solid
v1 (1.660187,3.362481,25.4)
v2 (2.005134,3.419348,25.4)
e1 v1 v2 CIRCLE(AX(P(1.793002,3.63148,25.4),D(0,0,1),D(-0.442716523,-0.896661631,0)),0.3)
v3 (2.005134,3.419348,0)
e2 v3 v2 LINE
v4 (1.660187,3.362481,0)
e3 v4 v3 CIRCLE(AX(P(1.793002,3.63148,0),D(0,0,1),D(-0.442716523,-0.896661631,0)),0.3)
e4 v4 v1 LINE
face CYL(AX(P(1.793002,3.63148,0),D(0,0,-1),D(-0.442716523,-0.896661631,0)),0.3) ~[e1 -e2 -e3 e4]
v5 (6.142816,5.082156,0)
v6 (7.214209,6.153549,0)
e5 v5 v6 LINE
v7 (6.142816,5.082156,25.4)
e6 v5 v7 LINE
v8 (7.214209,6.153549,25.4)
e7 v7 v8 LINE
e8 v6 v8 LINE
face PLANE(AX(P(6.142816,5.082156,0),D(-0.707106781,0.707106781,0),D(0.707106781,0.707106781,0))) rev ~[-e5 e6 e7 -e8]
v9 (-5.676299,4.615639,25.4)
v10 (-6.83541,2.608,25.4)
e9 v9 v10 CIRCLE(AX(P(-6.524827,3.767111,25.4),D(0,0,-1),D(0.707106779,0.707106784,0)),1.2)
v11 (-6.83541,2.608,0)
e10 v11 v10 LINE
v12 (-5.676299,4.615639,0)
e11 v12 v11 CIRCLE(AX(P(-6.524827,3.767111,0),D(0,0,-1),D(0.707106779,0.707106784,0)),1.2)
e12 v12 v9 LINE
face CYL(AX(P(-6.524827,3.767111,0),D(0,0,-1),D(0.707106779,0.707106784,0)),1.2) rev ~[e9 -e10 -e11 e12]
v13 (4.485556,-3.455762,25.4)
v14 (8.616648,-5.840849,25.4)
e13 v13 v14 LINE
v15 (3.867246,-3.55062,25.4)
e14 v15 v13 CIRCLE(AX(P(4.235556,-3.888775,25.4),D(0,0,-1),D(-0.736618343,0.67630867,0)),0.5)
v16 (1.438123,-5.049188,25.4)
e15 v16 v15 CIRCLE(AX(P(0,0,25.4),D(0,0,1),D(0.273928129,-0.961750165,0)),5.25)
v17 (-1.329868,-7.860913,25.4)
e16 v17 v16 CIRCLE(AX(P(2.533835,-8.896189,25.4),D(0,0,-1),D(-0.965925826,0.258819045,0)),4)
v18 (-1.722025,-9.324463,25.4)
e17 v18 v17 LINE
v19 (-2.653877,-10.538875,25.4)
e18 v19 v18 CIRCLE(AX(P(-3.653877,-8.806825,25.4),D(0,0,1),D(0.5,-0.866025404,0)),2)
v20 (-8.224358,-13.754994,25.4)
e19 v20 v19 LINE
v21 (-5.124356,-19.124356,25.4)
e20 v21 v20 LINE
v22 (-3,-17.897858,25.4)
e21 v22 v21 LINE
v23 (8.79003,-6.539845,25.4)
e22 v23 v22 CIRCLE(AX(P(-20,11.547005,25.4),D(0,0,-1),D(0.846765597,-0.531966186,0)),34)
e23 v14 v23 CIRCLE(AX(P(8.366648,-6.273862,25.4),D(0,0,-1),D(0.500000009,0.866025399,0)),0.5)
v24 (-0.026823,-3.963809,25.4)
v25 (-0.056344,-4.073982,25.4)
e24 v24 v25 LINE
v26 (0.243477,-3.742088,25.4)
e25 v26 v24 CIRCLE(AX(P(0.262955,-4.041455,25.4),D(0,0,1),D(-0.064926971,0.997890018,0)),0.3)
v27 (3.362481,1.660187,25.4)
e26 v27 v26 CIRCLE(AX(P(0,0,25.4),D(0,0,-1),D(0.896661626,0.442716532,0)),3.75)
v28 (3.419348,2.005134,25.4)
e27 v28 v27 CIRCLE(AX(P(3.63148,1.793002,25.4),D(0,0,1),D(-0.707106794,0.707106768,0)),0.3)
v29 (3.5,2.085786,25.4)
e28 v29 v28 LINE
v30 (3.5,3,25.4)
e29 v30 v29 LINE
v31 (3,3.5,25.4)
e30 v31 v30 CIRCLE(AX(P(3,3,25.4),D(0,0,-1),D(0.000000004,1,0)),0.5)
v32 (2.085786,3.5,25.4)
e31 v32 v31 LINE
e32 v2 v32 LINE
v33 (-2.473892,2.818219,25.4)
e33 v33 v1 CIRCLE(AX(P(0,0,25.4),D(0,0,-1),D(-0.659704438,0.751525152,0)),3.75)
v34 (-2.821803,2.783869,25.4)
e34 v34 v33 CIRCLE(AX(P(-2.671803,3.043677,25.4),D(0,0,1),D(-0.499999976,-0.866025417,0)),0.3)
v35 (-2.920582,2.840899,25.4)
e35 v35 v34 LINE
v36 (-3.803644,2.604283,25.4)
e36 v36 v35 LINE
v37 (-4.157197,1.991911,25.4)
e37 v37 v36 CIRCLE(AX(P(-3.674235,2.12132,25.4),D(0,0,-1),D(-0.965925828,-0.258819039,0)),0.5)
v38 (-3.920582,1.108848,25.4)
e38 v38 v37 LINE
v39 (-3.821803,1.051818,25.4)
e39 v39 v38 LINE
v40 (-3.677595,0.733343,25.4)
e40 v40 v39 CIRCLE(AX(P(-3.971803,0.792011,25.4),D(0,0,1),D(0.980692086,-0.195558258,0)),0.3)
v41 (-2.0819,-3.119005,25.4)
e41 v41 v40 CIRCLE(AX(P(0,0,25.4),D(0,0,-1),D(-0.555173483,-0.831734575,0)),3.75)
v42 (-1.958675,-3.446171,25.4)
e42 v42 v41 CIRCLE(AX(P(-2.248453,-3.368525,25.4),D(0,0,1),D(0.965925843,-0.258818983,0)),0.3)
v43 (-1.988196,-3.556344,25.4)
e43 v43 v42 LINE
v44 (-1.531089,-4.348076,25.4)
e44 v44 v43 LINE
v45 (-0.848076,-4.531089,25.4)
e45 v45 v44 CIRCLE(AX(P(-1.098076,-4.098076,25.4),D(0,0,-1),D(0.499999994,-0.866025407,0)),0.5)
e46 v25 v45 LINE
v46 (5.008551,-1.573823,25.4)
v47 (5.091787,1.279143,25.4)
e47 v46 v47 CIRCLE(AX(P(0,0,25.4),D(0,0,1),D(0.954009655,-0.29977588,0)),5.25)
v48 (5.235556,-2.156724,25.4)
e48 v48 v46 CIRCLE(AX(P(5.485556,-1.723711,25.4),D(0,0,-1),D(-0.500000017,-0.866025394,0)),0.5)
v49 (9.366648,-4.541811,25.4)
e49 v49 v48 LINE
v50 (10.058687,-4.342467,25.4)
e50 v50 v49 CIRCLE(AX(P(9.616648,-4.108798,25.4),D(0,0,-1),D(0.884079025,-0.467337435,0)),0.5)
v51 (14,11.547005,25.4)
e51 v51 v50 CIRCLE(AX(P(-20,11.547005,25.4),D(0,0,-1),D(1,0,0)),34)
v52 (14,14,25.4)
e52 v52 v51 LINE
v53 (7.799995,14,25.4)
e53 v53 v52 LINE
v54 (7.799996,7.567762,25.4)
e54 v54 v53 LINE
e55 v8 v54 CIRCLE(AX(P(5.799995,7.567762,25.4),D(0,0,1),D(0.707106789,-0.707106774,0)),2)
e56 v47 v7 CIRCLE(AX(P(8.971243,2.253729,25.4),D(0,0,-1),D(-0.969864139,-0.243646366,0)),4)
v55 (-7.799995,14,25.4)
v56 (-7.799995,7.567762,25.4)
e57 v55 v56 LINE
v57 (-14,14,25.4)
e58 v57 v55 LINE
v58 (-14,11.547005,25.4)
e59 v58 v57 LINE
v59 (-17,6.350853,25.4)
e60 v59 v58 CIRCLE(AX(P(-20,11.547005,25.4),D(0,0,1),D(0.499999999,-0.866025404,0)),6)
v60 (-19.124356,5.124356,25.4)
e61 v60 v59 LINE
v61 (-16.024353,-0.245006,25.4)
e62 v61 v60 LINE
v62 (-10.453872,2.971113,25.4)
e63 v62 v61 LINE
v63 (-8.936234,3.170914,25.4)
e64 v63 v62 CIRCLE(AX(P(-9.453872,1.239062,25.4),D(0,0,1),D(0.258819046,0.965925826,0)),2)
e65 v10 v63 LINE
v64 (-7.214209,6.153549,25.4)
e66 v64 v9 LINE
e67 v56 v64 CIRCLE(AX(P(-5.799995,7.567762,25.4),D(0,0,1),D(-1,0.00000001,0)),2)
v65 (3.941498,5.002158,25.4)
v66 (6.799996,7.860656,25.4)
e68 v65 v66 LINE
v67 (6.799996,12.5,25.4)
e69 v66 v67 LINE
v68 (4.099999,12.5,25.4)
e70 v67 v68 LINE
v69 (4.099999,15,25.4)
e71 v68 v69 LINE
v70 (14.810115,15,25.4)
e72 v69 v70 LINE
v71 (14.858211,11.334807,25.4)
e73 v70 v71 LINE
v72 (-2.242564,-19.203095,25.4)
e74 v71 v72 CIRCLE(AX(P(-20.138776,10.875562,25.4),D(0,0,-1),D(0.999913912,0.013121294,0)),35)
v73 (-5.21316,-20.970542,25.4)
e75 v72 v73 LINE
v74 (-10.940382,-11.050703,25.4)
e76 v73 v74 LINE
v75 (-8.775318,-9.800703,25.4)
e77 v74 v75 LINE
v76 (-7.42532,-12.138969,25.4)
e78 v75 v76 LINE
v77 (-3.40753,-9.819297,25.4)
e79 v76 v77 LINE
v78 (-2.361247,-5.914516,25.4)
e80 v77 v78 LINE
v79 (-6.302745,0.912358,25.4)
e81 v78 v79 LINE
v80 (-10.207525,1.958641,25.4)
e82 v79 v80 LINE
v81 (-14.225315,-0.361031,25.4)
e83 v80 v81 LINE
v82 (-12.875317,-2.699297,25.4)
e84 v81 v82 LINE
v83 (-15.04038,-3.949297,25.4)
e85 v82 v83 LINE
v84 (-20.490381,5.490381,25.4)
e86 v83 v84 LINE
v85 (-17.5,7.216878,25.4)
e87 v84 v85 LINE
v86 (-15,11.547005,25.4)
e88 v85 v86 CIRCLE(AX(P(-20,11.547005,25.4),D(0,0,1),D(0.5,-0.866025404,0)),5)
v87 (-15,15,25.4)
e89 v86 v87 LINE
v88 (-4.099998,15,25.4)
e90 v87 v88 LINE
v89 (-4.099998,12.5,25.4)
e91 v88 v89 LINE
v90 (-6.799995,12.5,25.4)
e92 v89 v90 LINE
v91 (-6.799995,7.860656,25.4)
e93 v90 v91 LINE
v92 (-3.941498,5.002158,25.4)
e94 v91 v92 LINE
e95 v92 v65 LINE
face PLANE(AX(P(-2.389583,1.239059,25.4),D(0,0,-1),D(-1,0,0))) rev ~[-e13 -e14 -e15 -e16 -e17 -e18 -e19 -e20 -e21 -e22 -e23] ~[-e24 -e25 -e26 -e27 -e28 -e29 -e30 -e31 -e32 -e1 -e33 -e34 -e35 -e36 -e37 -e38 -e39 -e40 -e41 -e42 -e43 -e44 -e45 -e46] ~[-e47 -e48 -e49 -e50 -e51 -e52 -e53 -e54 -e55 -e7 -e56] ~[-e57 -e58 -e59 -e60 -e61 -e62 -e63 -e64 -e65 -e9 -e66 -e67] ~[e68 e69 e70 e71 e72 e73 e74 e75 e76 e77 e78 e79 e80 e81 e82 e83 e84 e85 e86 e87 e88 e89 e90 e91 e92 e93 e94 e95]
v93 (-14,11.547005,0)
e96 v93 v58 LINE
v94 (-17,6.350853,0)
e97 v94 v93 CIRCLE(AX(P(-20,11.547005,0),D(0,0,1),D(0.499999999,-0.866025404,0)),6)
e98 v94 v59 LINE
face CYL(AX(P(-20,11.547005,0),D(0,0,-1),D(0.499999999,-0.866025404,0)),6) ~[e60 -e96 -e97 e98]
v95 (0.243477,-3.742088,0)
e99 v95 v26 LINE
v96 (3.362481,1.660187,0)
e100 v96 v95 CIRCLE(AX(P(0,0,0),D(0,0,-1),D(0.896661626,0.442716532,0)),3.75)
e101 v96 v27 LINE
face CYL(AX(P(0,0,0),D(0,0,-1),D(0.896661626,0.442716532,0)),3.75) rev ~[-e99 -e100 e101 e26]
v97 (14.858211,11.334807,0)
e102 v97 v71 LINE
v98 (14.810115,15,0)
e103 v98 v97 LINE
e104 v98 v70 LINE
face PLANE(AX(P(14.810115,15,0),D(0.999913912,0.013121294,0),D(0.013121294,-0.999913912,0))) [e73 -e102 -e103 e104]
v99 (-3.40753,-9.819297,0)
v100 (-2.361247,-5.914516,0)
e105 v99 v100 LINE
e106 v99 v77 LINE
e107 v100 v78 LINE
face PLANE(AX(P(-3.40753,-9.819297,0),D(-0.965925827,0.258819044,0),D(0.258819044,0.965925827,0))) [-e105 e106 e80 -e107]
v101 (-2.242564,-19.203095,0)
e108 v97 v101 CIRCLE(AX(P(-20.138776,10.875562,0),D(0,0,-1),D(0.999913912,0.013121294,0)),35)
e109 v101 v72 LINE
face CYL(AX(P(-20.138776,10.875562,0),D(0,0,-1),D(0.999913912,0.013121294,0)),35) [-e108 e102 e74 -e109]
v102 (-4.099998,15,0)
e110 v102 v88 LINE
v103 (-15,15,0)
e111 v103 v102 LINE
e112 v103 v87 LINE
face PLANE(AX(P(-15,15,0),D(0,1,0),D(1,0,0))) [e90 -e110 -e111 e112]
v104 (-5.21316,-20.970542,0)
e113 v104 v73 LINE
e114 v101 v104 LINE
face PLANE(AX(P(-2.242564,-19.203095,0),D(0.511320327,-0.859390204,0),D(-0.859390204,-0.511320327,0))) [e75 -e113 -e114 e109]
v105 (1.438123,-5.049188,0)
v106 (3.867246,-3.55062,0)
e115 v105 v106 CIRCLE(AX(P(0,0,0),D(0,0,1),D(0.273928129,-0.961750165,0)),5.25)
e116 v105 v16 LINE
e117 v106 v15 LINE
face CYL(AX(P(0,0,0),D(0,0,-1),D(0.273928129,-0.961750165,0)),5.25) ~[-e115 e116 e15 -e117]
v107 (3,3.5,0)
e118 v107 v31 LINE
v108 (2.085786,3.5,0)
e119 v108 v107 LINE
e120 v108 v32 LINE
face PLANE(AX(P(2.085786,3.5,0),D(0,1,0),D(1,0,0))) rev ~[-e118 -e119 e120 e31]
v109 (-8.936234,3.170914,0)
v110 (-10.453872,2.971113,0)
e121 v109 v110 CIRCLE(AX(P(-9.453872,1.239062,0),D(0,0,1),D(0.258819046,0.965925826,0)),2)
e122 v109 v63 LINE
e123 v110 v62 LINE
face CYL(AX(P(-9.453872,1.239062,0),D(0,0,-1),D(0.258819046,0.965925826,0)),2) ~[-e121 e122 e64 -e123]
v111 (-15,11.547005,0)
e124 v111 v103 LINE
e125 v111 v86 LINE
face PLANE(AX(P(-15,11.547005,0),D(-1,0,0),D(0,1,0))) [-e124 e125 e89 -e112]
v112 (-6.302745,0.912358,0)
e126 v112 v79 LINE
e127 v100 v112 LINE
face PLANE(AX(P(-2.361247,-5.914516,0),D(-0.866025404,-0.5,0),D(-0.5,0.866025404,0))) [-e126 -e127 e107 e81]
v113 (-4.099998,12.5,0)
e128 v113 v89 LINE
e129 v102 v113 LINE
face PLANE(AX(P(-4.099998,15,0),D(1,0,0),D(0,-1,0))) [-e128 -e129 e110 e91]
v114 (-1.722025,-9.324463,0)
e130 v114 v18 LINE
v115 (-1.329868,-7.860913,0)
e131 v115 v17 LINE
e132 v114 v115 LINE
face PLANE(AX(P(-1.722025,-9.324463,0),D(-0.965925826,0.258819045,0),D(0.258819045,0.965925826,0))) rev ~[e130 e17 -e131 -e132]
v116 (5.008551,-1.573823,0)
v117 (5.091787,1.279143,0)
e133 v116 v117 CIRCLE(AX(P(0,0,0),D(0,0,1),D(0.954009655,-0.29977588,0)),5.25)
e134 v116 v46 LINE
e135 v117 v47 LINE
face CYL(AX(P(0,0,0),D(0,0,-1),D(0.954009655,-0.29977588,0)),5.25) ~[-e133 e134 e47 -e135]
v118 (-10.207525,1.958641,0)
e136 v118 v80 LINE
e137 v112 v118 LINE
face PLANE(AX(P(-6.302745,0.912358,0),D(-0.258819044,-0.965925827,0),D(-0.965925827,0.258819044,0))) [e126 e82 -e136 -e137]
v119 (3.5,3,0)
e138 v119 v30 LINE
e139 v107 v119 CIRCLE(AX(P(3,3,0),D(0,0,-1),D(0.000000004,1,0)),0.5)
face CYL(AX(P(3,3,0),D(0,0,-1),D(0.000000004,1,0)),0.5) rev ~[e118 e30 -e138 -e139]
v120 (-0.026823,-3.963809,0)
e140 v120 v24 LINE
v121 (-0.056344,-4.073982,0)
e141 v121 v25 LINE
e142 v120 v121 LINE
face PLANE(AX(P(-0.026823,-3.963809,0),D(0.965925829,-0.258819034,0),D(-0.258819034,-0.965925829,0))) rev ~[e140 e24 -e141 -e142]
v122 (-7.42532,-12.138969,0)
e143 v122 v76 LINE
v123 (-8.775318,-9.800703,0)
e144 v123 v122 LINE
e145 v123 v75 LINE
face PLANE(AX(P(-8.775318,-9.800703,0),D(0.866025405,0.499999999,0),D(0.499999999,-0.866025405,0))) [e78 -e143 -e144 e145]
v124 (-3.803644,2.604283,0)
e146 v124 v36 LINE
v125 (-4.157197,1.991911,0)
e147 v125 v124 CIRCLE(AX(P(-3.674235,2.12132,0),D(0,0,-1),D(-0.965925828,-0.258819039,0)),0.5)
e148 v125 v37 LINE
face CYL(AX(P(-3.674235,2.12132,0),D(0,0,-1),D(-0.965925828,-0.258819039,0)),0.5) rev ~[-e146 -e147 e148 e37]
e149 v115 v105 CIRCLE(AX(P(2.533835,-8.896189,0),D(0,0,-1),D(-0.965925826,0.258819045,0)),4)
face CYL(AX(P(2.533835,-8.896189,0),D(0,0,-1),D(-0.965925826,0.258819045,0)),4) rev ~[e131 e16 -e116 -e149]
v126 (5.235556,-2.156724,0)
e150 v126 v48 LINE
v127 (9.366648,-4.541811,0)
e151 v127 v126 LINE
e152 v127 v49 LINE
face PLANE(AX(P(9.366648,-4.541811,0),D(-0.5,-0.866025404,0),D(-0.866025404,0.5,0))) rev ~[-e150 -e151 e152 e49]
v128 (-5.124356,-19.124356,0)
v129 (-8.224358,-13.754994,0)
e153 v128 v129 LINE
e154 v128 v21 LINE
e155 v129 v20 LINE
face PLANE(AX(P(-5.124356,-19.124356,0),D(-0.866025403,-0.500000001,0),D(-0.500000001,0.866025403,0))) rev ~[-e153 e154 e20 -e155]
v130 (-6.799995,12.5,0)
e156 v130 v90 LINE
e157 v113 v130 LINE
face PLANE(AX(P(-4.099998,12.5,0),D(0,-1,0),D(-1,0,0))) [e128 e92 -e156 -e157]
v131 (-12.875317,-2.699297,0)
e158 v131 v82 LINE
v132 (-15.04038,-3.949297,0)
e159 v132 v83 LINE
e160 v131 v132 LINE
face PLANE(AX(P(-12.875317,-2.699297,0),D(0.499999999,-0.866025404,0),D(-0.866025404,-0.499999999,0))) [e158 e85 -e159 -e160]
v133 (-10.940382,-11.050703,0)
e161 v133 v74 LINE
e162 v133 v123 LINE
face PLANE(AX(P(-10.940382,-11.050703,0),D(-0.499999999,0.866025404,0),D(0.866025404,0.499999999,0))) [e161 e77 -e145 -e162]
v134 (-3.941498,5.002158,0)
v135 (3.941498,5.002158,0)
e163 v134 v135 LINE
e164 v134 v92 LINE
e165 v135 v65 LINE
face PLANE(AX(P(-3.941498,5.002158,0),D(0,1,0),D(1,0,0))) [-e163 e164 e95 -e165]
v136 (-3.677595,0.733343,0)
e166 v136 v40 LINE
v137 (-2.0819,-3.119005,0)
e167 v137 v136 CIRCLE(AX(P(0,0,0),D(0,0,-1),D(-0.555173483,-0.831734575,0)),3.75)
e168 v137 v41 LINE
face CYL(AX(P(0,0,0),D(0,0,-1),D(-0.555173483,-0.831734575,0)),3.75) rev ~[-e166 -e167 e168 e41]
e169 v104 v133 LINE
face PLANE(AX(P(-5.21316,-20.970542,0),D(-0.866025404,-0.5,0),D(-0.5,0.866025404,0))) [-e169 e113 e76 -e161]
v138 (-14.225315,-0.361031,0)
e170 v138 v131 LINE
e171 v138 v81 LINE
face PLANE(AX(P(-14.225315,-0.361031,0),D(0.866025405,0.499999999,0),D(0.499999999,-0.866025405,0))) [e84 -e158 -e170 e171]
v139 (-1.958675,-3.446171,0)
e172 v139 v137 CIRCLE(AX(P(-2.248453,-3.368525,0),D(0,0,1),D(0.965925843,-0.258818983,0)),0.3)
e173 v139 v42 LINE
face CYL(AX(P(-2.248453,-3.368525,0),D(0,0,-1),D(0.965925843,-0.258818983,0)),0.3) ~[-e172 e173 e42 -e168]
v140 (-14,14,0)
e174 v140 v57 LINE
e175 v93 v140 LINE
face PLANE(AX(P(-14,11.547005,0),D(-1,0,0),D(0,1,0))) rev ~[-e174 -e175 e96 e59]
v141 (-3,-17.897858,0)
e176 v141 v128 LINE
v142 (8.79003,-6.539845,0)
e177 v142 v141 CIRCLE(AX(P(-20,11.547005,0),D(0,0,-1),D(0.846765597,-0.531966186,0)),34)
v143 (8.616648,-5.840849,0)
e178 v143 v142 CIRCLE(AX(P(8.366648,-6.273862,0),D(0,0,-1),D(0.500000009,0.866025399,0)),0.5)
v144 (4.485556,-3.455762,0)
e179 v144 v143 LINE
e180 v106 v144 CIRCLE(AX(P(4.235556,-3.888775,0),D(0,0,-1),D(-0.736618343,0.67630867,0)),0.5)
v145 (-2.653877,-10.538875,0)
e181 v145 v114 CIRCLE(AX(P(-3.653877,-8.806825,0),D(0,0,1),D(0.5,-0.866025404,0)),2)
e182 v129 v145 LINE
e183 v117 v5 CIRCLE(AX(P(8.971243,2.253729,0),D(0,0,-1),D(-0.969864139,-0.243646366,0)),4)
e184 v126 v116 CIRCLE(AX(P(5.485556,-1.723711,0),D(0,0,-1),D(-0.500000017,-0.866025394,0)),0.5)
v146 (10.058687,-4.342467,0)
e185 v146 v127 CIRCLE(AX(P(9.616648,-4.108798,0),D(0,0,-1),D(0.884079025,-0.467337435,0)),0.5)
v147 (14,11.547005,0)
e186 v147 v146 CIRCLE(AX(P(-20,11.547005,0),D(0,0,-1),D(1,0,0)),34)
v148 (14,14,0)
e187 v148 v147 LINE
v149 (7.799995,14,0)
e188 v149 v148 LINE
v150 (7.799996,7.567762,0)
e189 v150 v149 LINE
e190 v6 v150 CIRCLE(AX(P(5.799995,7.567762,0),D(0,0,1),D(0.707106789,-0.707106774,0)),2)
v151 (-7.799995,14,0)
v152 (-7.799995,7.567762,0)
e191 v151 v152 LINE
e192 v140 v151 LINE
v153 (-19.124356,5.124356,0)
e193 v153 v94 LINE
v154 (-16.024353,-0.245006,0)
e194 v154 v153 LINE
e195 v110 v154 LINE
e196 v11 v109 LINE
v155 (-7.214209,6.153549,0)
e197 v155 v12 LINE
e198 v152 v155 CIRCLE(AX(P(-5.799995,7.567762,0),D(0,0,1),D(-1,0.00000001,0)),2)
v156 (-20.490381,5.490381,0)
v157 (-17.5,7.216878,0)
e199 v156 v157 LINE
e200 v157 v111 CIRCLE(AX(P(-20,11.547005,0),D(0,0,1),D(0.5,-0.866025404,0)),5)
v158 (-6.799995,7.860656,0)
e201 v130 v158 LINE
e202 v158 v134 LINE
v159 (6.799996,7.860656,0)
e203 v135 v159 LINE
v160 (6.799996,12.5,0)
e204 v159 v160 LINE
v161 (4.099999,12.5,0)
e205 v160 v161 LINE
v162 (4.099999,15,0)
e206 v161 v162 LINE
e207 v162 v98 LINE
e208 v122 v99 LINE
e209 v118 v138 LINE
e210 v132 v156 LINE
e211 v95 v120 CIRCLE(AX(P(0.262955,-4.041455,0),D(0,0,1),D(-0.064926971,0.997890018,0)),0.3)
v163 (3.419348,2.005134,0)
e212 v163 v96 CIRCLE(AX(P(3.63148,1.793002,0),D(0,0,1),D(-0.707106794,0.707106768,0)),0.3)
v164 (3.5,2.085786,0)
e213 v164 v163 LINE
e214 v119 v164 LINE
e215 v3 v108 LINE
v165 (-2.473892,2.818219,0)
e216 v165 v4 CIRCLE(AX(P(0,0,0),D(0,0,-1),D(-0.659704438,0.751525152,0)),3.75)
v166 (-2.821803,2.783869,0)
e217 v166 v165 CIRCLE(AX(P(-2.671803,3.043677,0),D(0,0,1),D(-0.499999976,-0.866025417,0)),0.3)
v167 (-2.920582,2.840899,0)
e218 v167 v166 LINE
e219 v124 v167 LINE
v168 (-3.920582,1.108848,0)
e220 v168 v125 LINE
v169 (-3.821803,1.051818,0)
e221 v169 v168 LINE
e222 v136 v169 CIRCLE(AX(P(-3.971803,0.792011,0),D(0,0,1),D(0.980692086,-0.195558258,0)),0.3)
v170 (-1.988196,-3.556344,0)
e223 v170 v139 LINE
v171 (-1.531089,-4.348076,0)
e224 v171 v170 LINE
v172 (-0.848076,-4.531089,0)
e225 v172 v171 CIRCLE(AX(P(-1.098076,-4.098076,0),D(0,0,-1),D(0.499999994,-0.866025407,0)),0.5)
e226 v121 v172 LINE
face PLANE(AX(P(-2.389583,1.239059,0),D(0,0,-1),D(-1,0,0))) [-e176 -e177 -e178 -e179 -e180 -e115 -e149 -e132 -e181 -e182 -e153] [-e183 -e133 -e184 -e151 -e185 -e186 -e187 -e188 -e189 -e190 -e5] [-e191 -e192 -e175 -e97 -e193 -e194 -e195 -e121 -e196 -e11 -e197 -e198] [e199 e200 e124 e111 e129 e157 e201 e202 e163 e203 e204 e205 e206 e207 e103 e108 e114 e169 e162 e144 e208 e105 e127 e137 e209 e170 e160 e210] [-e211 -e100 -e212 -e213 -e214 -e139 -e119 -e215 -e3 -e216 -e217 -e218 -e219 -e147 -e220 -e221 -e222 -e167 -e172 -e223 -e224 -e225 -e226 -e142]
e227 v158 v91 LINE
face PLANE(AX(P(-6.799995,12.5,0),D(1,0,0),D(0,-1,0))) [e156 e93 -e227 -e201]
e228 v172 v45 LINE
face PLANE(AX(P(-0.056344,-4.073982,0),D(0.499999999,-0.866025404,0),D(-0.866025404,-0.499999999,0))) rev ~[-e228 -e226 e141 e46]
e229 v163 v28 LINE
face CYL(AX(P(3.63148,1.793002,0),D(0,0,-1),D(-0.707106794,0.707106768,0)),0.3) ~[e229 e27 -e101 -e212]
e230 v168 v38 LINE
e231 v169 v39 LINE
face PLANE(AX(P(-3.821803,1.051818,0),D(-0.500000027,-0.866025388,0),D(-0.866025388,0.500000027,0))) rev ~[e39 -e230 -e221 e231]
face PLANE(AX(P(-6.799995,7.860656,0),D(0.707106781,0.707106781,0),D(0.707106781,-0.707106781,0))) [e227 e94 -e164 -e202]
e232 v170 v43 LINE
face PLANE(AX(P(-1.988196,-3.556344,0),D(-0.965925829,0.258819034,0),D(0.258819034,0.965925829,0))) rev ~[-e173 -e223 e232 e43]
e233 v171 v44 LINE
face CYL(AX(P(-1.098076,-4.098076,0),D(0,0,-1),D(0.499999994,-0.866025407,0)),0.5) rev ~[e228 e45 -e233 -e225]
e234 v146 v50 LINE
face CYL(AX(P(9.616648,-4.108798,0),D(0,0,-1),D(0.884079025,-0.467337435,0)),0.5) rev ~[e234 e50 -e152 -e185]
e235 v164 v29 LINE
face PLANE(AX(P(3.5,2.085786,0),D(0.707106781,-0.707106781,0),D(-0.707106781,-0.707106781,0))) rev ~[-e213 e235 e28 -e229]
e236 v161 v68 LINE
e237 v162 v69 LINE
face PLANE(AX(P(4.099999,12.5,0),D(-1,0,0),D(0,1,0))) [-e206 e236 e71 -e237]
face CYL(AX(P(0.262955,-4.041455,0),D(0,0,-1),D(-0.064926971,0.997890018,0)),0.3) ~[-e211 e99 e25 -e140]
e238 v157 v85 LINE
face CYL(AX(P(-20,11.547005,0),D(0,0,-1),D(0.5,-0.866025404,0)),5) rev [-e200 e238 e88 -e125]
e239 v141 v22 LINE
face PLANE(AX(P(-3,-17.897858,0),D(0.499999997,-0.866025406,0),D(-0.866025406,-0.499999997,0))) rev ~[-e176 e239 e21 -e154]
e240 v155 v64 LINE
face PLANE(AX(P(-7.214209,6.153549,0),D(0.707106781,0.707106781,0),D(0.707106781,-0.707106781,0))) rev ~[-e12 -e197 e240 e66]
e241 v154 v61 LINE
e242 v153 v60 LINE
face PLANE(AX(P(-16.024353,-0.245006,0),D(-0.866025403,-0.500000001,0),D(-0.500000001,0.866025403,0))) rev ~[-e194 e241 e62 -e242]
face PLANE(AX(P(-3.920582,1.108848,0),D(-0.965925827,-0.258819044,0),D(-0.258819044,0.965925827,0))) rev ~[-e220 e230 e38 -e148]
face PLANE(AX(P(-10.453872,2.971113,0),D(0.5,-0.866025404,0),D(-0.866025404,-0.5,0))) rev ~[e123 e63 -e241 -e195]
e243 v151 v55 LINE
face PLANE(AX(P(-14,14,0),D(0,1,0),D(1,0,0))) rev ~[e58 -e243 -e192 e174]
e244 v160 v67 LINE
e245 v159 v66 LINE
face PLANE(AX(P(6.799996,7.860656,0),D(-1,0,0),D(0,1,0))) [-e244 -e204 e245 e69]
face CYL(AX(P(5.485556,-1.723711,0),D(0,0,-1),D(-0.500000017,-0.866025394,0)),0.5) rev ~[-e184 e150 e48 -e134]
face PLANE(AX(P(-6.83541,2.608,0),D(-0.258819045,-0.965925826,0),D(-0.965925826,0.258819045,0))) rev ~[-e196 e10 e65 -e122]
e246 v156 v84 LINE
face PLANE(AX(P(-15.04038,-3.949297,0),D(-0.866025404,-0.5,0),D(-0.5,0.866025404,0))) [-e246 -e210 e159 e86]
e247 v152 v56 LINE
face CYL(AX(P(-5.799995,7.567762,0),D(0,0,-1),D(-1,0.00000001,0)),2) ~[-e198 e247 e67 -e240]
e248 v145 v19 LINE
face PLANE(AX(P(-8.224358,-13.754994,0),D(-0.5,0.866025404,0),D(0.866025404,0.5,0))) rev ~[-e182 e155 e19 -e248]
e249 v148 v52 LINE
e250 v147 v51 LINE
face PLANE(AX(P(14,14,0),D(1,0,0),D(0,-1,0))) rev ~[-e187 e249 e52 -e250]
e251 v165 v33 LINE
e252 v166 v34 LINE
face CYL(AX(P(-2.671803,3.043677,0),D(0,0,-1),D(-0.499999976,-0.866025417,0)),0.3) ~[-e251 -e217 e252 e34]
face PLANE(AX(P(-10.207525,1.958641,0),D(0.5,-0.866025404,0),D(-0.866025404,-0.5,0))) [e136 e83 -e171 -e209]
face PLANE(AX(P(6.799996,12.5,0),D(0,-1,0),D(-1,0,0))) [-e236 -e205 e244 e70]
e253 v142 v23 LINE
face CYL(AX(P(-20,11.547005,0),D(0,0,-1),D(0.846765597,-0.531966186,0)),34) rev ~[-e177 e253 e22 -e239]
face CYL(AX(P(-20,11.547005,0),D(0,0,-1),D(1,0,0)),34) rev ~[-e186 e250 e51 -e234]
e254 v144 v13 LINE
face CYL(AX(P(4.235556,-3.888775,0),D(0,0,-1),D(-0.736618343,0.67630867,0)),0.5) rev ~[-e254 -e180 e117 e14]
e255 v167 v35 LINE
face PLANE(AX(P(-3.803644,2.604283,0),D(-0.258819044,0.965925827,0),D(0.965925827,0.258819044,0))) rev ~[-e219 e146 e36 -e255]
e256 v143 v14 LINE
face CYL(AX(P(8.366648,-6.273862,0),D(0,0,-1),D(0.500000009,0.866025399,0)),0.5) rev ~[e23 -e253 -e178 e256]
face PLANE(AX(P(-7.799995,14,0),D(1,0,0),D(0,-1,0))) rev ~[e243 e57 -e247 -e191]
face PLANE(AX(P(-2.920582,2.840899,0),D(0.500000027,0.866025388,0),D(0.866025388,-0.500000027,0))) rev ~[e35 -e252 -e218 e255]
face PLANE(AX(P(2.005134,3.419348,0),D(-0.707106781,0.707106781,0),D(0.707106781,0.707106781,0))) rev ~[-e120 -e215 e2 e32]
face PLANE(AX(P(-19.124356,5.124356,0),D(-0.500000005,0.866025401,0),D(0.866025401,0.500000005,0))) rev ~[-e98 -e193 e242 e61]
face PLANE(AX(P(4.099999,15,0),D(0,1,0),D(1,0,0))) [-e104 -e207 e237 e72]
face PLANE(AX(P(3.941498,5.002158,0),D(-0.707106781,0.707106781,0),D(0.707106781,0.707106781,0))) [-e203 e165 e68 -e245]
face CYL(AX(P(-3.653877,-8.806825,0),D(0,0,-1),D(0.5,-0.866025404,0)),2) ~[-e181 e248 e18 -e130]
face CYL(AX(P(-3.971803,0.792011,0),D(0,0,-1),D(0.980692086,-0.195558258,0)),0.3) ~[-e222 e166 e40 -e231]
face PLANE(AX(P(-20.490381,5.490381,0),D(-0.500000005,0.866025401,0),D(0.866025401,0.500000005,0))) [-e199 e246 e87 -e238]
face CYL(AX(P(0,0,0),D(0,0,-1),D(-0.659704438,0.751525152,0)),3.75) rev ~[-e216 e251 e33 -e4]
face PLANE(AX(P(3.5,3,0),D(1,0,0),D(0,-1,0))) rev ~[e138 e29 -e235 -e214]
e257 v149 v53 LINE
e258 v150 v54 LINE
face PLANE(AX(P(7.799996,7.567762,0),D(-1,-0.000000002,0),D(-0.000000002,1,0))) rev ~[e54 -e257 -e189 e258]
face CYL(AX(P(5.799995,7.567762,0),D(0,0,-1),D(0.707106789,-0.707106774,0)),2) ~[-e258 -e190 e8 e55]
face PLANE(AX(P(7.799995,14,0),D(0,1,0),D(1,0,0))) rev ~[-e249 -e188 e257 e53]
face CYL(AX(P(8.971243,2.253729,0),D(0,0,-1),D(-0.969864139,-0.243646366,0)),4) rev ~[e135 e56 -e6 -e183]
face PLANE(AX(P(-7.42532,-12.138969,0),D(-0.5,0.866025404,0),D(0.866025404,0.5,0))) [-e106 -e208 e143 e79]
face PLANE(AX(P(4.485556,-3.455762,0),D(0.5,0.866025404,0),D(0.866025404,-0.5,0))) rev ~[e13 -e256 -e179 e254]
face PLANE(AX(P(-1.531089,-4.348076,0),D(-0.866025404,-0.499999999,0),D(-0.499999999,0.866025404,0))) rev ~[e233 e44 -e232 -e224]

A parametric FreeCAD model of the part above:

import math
import FreeCAD as App
import Part
import Sketcher
from FreeCAD import Vector
Q = App.Units.Quantity

doc = App.newDocument("Part")
body = doc.addObject("PartDesign::Body", "Body")

# Sketch on XY plane
sketch1 = body.newObject("Sketcher::SketchObject", "Sketch")
sketch1.AttachmentSupport = (doc.getObject("XY_Plane"), [""])
sketch1.MapMode = "FlatFace"
sketch1.addGeometry([
    Part.LineSegment(Vector(-4.099998, 15, 0), Vector(-15, 15, 0)),  # 0
    Part.LineSegment(Vector(-15, 15, 0), Vector(-15, 11.547005, 0)),  # 1
    Part.ArcOfCircle(Part.Circle(Vector(-20, 11.547005, 0), Vector(0, 0, 1), 5), math.radians(-60), math.radians(0)),  # 2
    Part.LineSegment(Vector(-17.5, 7.216878, 0), Vector(-20.490381, 5.490381, 0)),  # 3
    Part.LineSegment(Vector(-20.490381, 5.490381, 0), Vector(-15.04038, -3.949297, 0)),  # 4
    Part.LineSegment(Vector(-15.04038, -3.949297, 0), Vector(-12.875317, -2.699297, 0)),  # 5
    Part.LineSegment(Vector(-12.875317, -2.699297, 0), Vector(-14.225315, -0.361031, 0)),  # 6
    Part.LineSegment(Vector(-14.225315, -0.361031, 0), Vector(-10.207525, 1.958641, 0)),  # 7
    Part.LineSegment(Vector(-10.207525, 1.958641, 0), Vector(-6.302745, 0.912358, 0)),  # 8
    Part.LineSegment(Vector(-6.302745, 0.912358, 0), Vector(-2.361247, -5.914516, 0)),  # 9
    Part.LineSegment(Vector(-2.361247, -5.914516, 0), Vector(-3.40753, -9.819297, 0)),  # 10
    Part.LineSegment(Vector(-3.40753, -9.819297, 0), Vector(-7.42532, -12.138969, 0)),  # 11
    Part.LineSegment(Vector(-7.42532, -12.138969, 0), Vector(-8.775318, -9.800703, 0)),  # 12
    Part.LineSegment(Vector(-8.775318, -9.800703, 0), Vector(-10.940382, -11.050703, 0)),  # 13
    Part.LineSegment(Vector(-10.940382, -11.050703, 0), Vector(-5.21316, -20.970542, 0)),  # 14
    Part.LineSegment(Vector(-5.21316, -20.970542, 0), Vector(-2.242564, -19.203095, 0)),  # 15
    Part.ArcOfCircle(Part.Circle(Vector(-20.138776, 10.875562, 0), Vector(0, 0, 1), 35), math.radians(-59.248184), math.radians(0.751816)),  # 16
    Part.LineSegment(Vector(14.858211, 11.334807, 0), Vector(14.810115, 15, 0)),  # 17
    Part.LineSegment(Vector(14.810115, 15, 0), Vector(4.099999, 15, 0)),  # 18
    Part.LineSegment(Vector(4.099999, 15, 0), Vector(4.099999, 12.5, 0)),  # 19
    Part.LineSegment(Vector(4.099999, 12.5, 0), Vector(6.799996, 12.5, 0)),  # 20
    Part.LineSegment(Vector(6.799996, 12.5, 0), Vector(6.799996, 7.860656, 0)),  # 21
    Part.LineSegment(Vector(6.799996, 7.860656, 0), Vector(3.941498, 5.002158, 0)),  # 22
    Part.LineSegment(Vector(3.941498, 5.002158, 0), Vector(-3.941498, 5.002158, 0)),  # 23
    Part.LineSegment(Vector(-3.941498, 5.002158, 0), Vector(-6.799995, 7.860656, 0)),  # 24
    Part.LineSegment(Vector(-6.799995, 7.860656, 0), Vector(-6.799995, 12.5, 0)),  # 25
    Part.LineSegment(Vector(-6.799995, 12.5, 0), Vector(-4.099998, 12.5, 0)),  # 26
    Part.LineSegment(Vector(-4.099998, 12.5, 0), Vector(-4.099998, 15, 0)),  # 27
    Part.LineSegment(Vector(-1.722025, -9.324463, 0), Vector(-1.329868, -7.860913, 0)),  # 28
    Part.ArcOfCircle(Part.Circle(Vector(2.533835, -8.896189, 0), Vector(0, 0, 1), 4), math.radians(105.898148), math.radians(165)),  # 29
    Part.ArcOfCircle(Part.Circle(Vector(0, 0, 0), Vector(0, 0, 1), 5.25), math.radians(-74.101852), math.radians(-42.555858)),  # 30
    Part.ArcOfCircle(Part.Circle(Vector(4.235556, -3.888775, 0), Vector(0, 0, 1), 0.5), math.radians(60), math.radians(137.444141)),  # 31
    Part.LineSegment(Vector(4.485556, -3.455762, 0), Vector(8.616648, -5.840849, 0)),  # 32
    Part.ArcOfCircle(Part.Circle(Vector(8.366648, -6.273862, 0), Vector(0, 0, 1), 0.5), math.radians(-32.138398), math.radians(59.999999)),  # 33
    Part.ArcOfCircle(Part.Circle(Vector(-20, 11.547005, 0), Vector(0, 0, 1), 34), math.radians(-60), math.radians(-32.138399)),  # 34
    Part.LineSegment(Vector(-3, -17.897858, 0), Vector(-5.124356, -19.124356, 0)),  # 35
    Part.LineSegment(Vector(-5.124356, -19.124356, 0), Vector(-8.224358, -13.754994, 0)),  # 36
    Part.LineSegment(Vector(-8.224358, -13.754994, 0), Vector(-2.653877, -10.538875, 0)),  # 37
    Part.ArcOfCircle(Part.Circle(Vector(-3.653877, -8.806825, 0), Vector(0, 0, 1), 2), math.radians(-60), math.radians(-15)),  # 38
    Part.LineSegment(Vector(7.799996, 7.567762, 0), Vector(7.799995, 14, 0)),  # 39
    Part.LineSegment(Vector(7.799995, 14, 0), Vector(14, 14, 0)),  # 40
    Part.LineSegment(Vector(14, 14, 0), Vector(14, 11.547005, 0)),  # 41
    Part.ArcOfCircle(Part.Circle(Vector(-20, 11.547005, 0), Vector(0, 0, 1), 34), math.radians(-27.861601), math.radians(0)),  # 42
    Part.ArcOfCircle(Part.Circle(Vector(9.616648, -4.108798, 0), Vector(0, 0, 1), 0.5), math.radians(-119.999999), math.radians(-27.861602)),  # 43
    Part.LineSegment(Vector(9.366648, -4.541811, 0), Vector(5.235556, -2.156724, 0)),  # 44
    Part.ArcOfCircle(Part.Circle(Vector(5.485556, -1.723711, 0), Vector(0, 0, 1), 0.5), math.radians(162.555859), math.radians(239.999999)),  # 45
    Part.ArcOfCircle(Part.Circle(Vector(0, 0, 0), Vector(0, 0, 1), 5.25), math.radians(-17.444142), math.radians(14.101852)),  # 46
    Part.ArcOfCircle(Part.Circle(Vector(8.971243, 2.253729, 0), Vector(0, 0, 1), 4), math.radians(135), math.radians(194.101852)),  # 47
    Part.LineSegment(Vector(6.142816, 5.082156, 0), Vector(7.214209, 6.153549, 0)),  # 48
    Part.ArcOfCircle(Part.Circle(Vector(5.799995, 7.567762, 0), Vector(0, 0, 1), 2), math.radians(-44.999999), math.radians(-0.000001)),  # 49
    Part.LineSegment(Vector(-3.803644, 2.604283, 0), Vector(-2.920582, 2.840899, 0)),  # 50
    Part.LineSegment(Vector(-2.920582, 2.840899, 0), Vector(-2.821803, 2.783869, 0)),  # 51
    Part.ArcOfCircle(Part.Circle(Vector(-2.671803, 3.043677, 0), Vector(0, 0, 1), 0.3), math.radians(-119.999998), math.radians(-48.722665)),  # 52
    Part.ArcOfCircle(Part.Circle(Vector(0, 0, 0), Vector(0, 0, 1), 3.75), math.radians(63.722665), math.radians(131.277335)),  # 53
    Part.ArcOfCircle(Part.Circle(Vector(1.793002, 3.63148, 0), Vector(0, 0, 1), 0.3), math.radians(-116.277335), math.radians(-45.000002)),  # 54
    Part.LineSegment(Vector(2.005134, 3.419348, 0), Vector(2.085786, 3.5, 0)),  # 55
    Part.LineSegment(Vector(2.085786, 3.5, 0), Vector(3, 3.5, 0)),  # 56
    Part.ArcOfCircle(Part.Circle(Vector(3, 3, 0), Vector(0, 0, 1), 0.5), math.radians(0), math.radians(90)),  # 57
    Part.LineSegment(Vector(3.5, 3, 0), Vector(3.5, 2.085786, 0)),  # 58
    Part.LineSegment(Vector(3.5, 2.085786, 0), Vector(3.419348, 2.005134, 0)),  # 59
    Part.ArcOfCircle(Part.Circle(Vector(3.63148, 1.793002, 0), Vector(0, 0, 1), 0.3), math.radians(135.000001), math.radians(206.277338)),  # 60
    Part.ArcOfCircle(Part.Circle(Vector(0, 0, 0), Vector(0, 0, 1), 3.75), math.radians(-86.277335), math.radians(26.277335)),  # 61
    Part.ArcOfCircle(Part.Circle(Vector(0.262955, -4.041455, 0), Vector(0, 0, 1), 0.3), math.radians(93.72266), math.radians(165.000005)),  # 62
    Part.LineSegment(Vector(-0.026823, -3.963809, 0), Vector(-0.056344, -4.073982, 0)),  # 63
    Part.LineSegment(Vector(-0.056344, -4.073982, 0), Vector(-0.848076, -4.531089, 0)),  # 64
    Part.ArcOfCircle(Part.Circle(Vector(-1.098076, -4.098076, 0), Vector(0, 0, 1), 0.5), math.radians(-149.999999), math.radians(-60)),  # 65
    Part.LineSegment(Vector(-1.531089, -4.348076, 0), Vector(-1.988196, -3.556344, 0)),  # 66
    Part.LineSegment(Vector(-1.988196, -3.556344, 0), Vector(-1.958675, -3.446171, 0)),  # 67
    Part.ArcOfCircle(Part.Circle(Vector(-2.248453, -3.368525, 0), Vector(0, 0, 1), 0.3), math.radians(-14.999996), math.radians(56.27733)),  # 68
    Part.ArcOfCircle(Part.Circle(Vector(0, 0, 0), Vector(0, 0, 1), 3.75), math.radians(168.722665), math.radians(236.277335)),  # 69
    Part.ArcOfCircle(Part.Circle(Vector(-3.971803, 0.792011, 0), Vector(0, 0, 1), 0.3), math.radians(-11.277337), math.radians(60.000002)),  # 70
    Part.LineSegment(Vector(-3.821803, 1.051818, 0), Vector(-3.920582, 1.108848, 0)),  # 71
    Part.LineSegment(Vector(-3.920582, 1.108848, 0), Vector(-4.157197, 1.991911, 0)),  # 72
    Part.ArcOfCircle(Part.Circle(Vector(-3.674235, 2.12132, 0), Vector(0, 0, 1), 0.5), math.radians(105.000003), math.radians(195)),  # 73
    Part.LineSegment(Vector(-14, 11.547005, 0), Vector(-14, 14, 0)),  # 74
    Part.LineSegment(Vector(-14, 14, 0), Vector(-7.799995, 14, 0)),  # 75
    Part.LineSegment(Vector(-7.799995, 14, 0), Vector(-7.799995, 7.567762, 0)),  # 76
    Part.ArcOfCircle(Part.Circle(Vector(-5.799995, 7.567762, 0), Vector(0, 0, 1), 2), math.radians(179.999999), math.radians(225.000001)),  # 77
    Part.LineSegment(Vector(-7.214209, 6.153549, 0), Vector(-5.676299, 4.615639, 0)),  # 78
    Part.ArcOfCircle(Part.Circle(Vector(-6.524827, 3.767111, 0), Vector(0, 0, 1), 1.2), math.radians(-105), math.radians(45)),  # 79
    Part.LineSegment(Vector(-6.83541, 2.608, 0), Vector(-8.936234, 3.170914, 0)),  # 80
    Part.ArcOfCircle(Part.Circle(Vector(-9.453872, 1.239062, 0), Vector(0, 0, 1), 2), math.radians(75), math.radians(120)),  # 81
    Part.LineSegment(Vector(-10.453872, 2.971113, 0), Vector(-16.024353, -0.245006, 0)),  # 82
    Part.LineSegment(Vector(-16.024353, -0.245006, 0), Vector(-19.124356, 5.124356, 0)),  # 83
    Part.LineSegment(Vector(-19.124356, 5.124356, 0), Vector(-17, 6.350853, 0)),  # 84
    Part.ArcOfCircle(Part.Circle(Vector(-20, 11.547005, 0), Vector(0, 0, 1), 6), math.radians(-60), math.radians(0)),  # 85
], False)
sketch1.addConstraint([
    Sketcher.Constraint("Coincident", 0, 2, 1, 1),
    Sketcher.Constraint("Tangent", 1, 2, 2, 2),
    Sketcher.Constraint("Tangent", 2, 1, 3, 1),
    Sketcher.Constraint("Coincident", 3, 2, 4, 1),
    Sketcher.Constraint("Coincident", 4, 2, 5, 1),
    Sketcher.Constraint("Coincident", 5, 2, 6, 1),
    Sketcher.Constraint("Coincident", 6, 2, 7, 1),
    Sketcher.Constraint("Coincident", 7, 2, 8, 1),
    Sketcher.Constraint("Coincident", 8, 2, 9, 1),
    Sketcher.Constraint("Coincident", 9, 2, 10, 1),
    Sketcher.Constraint("Coincident", 10, 2, 11, 1),
    Sketcher.Constraint("Coincident", 11, 2, 12, 1),
    Sketcher.Constraint("Coincident", 12, 2, 13, 1),
    Sketcher.Constraint("Coincident", 13, 2, 14, 1),
    Sketcher.Constraint("Coincident", 14, 2, 15, 1),
    Sketcher.Constraint("Tangent", 15, 2, 16, 1),
    Sketcher.Constraint("Tangent", 16, 2, 17, 1),
    Sketcher.Constraint("Coincident", 17, 2, 18, 1),
    Sketcher.Constraint("Coincident", 18, 2, 19, 1),
    Sketcher.Constraint("Coincident", 19, 2, 20, 1),
    Sketcher.Constraint("Coincident", 20, 2, 21, 1),
    Sketcher.Constraint("Coincident", 21, 2, 22, 1),
    Sketcher.Constraint("Coincident", 22, 2, 23, 1),
    Sketcher.Constraint("Coincident", 23, 2, 24, 1),
    Sketcher.Constraint("Coincident", 24, 2, 25, 1),
    Sketcher.Constraint("Coincident", 25, 2, 26, 1),
    Sketcher.Constraint("Coincident", 26, 2, 27, 1),
    Sketcher.Constraint("Coincident", 27, 2, 0, 1),
    Sketcher.Constraint("Tangent", 28, 2, 29, 2),
    Sketcher.Constraint("Tangent", 29, 1, 30, 1),
    Sketcher.Constraint("Tangent", 30, 2, 31, 2),
    Sketcher.Constraint("Tangent", 31, 1, 32, 1),
    Sketcher.Constraint("Tangent", 32, 2, 33, 2),
    Sketcher.Constraint("Tangent", 33, 1, 34, 2),
    Sketcher.Constraint("Tangent", 34, 1, 35, 1),
    Sketcher.Constraint("Coincident", 35, 2, 36, 1),
    Sketcher.Constraint("Coincident", 36, 2, 37, 1),
    Sketcher.Constraint("Tangent", 37, 2, 38, 1),
    Sketcher.Constraint("Tangent", 38, 2, 28, 1),
    Sketcher.Constraint("Coincident", 39, 2, 40, 1),
    Sketcher.Constraint("Coincident", 40, 2, 41, 1),
    Sketcher.Constraint("Tangent", 41, 2, 42, 2),
    Sketcher.Constraint("Tangent", 42, 1, 43, 2),
    Sketcher.Constraint("Tangent", 43, 1, 44, 1),
    Sketcher.Constraint("Tangent", 44, 2, 45, 2),
    Sketcher.Constraint("Tangent", 45, 1, 46, 1),
    Sketcher.Constraint("Tangent", 46, 2, 47, 2),
    Sketcher.Constraint("Tangent", 47, 1, 48, 1),
    Sketcher.Constraint("Tangent", 48, 2, 49, 1),
    Sketcher.Constraint("Tangent", 49, 2, 39, 1),
    Sketcher.Constraint("Coincident", 50, 2, 51, 1),
    Sketcher.Constraint("Tangent", 51, 2, 52, 1),
    Sketcher.Constraint("Tangent", 52, 2, 53, 2),
    Sketcher.Constraint("Tangent", 53, 1, 54, 1),
    Sketcher.Constraint("Tangent", 54, 2, 55, 1),
    Sketcher.Constraint("Coincident", 55, 2, 56, 1),
    Sketcher.Constraint("Tangent", 56, 2, 57, 2),
    Sketcher.Constraint("Tangent", 57, 1, 58, 1),
    Sketcher.Constraint("Coincident", 58, 2, 59, 1),
    Sketcher.Constraint("Tangent", 59, 2, 60, 1),
    Sketcher.Constraint("Tangent", 60, 2, 61, 2),
    Sketcher.Constraint("Tangent", 61, 1, 62, 1),
    Sketcher.Constraint("Tangent", 62, 2, 63, 1),
    Sketcher.Constraint("Coincident", 63, 2, 64, 1),
    Sketcher.Constraint("Tangent", 64, 2, 65, 2),
    Sketcher.Constraint("Tangent", 65, 1, 66, 1),
    Sketcher.Constraint("Coincident", 66, 2, 67, 1),
    Sketcher.Constraint("Tangent", 67, 2, 68, 1),
    Sketcher.Constraint("Tangent", 68, 2, 69, 2),
    Sketcher.Constraint("Tangent", 69, 1, 70, 1),
    Sketcher.Constraint("Tangent", 70, 2, 71, 1),
    Sketcher.Constraint("Coincident", 71, 2, 72, 1),
    Sketcher.Constraint("Tangent", 72, 2, 73, 2),
    Sketcher.Constraint("Tangent", 73, 1, 50, 1),
    Sketcher.Constraint("Coincident", 74, 2, 75, 1),
    Sketcher.Constraint("Coincident", 75, 2, 76, 1),
    Sketcher.Constraint("Tangent", 76, 2, 77, 1),
    Sketcher.Constraint("Tangent", 77, 2, 78, 1),
    Sketcher.Constraint("Tangent", 78, 2, 79, 2),
    Sketcher.Constraint("Tangent", 79, 1, 80, 1),
    Sketcher.Constraint("Tangent", 80, 2, 81, 1),
    Sketcher.Constraint("Tangent", 81, 2, 82, 1),
    Sketcher.Constraint("Coincident", 82, 2, 83, 1),
    Sketcher.Constraint("Coincident", 83, 2, 84, 1),
    Sketcher.Constraint("Tangent", 84, 2, 85, 1),
    Sketcher.Constraint("Tangent", 85, 2, 74, 1),
    Sketcher.Constraint("Horizontal", 0),
    Sketcher.Constraint("Vertical", 1),
    Sketcher.Constraint("Horizontal", 18),
    Sketcher.Constraint("Vertical", 19),
    Sketcher.Constraint("Horizontal", 20),
    Sketcher.Constraint("Vertical", 21),
    Sketcher.Constraint("Horizontal", 23),
    Sketcher.Constraint("Vertical", 25),
    Sketcher.Constraint("Horizontal", 26),
    Sketcher.Constraint("Vertical", 27),
    Sketcher.Constraint("Vertical", 39),
    Sketcher.Constraint("Horizontal", 40),
    Sketcher.Constraint("Vertical", 41),
    Sketcher.Constraint("Horizontal", 56),
    Sketcher.Constraint("Vertical", 58),
    Sketcher.Constraint("Vertical", 74),
    Sketcher.Constraint("Horizontal", 75),
    Sketcher.Constraint("Vertical", 76),
    Sketcher.Constraint("Coincident", 30, 3, -1, 1),
    Sketcher.Constraint("Coincident", 46, 3, -1, 1),
    Sketcher.Constraint("Coincident", 53, 3, -1, 1),
    Sketcher.Constraint("Coincident", 61, 3, -1, 1),
    Sketcher.Constraint("Coincident", 69, 3, -1, 1),
    Sketcher.Constraint("Coincident", 34, 3, 2, 3),
    Sketcher.Constraint("Coincident", 42, 3, 2, 3),
    Sketcher.Constraint("Coincident", 85, 3, 2, 3),
    Sketcher.Constraint("Equal", 31, 33),
    Sketcher.Constraint("Equal", 34, 42),
    Sketcher.Constraint("Equal", 33, 43),
    Sketcher.Constraint("Equal", 43, 45),
    Sketcher.Constraint("Equal", 30, 46),
    Sketcher.Constraint("Equal", 29, 47),
    Sketcher.Constraint("Equal", 38, 49),
    Sketcher.Constraint("Equal", 52, 54),
    Sketcher.Constraint("Equal", 45, 57),
    Sketcher.Constraint("Equal", 54, 60),
    Sketcher.Constraint("Equal", 53, 61),
    Sketcher.Constraint("Equal", 60, 62),
    Sketcher.Constraint("Equal", 57, 65),
    Sketcher.Constraint("Equal", 62, 68),
    Sketcher.Constraint("Equal", 61, 69),
    Sketcher.Constraint("Equal", 68, 70),
    Sketcher.Constraint("Equal", 65, 73),
    Sketcher.Constraint("Equal", 49, 77),
    Sketcher.Constraint("Equal", 77, 81),
    Sketcher.Constraint("Symmetric", 49, 3, 77, 3, -2),
    Sketcher.Constraint("Symmetric", 21, 2, 24, 2, -2),
    Sketcher.Constraint("Symmetric", 19, 2, 26, 2, -2),
    Sketcher.Constraint("Symmetric", 40, 2, 74, 2, -2),
    Sketcher.Constraint("Perpendicular", 3, 4),
    Sketcher.Constraint("Perpendicular", 4, 5),
    Sketcher.Constraint("Perpendicular", 5, 6),
    Sketcher.Constraint("Perpendicular", 6, 7),
    Sketcher.Constraint("Perpendicular", 7, 9),
    Sketcher.Constraint("Perpendicular", 8, 10),
    Sketcher.Constraint("Perpendicular", 9, 11),
    Sketcher.Constraint("Perpendicular", 11, 12),
    Sketcher.Constraint("Perpendicular", 12, 13),
    Sketcher.Constraint("Perpendicular", 13, 14),
    Sketcher.Constraint("Perpendicular", 22, 24),
    Sketcher.Constraint("Parallel", 10, 28),
    Sketcher.Constraint("Perpendicular", 14, 35),
    Sketcher.Constraint("Perpendicular", 35, 36),
    Sketcher.Constraint("Perpendicular", 36, 37),
    Sketcher.Constraint("Parallel", 32, 44),
    Sketcher.Constraint("Perpendicular", 24, 48),
    Sketcher.Constraint("Parallel", 44, 51),
    Sketcher.Constraint("Parallel", 48, 55),
    Sketcher.Constraint("Parallel", 55, 59),
    Sketcher.Constraint("Parallel", 28, 63),
    Sketcher.Constraint("Parallel", 37, 64),
    Sketcher.Constraint("Perpendicular", 64, 66),
    Sketcher.Constraint("Parallel", 63, 67),
    Sketcher.Constraint("Parallel", 51, 71),
    Sketcher.Constraint("Perpendicular", 50, 72),
    Sketcher.Constraint("Perpendicular", 59, 78),
    Sketcher.Constraint("Perpendicular", 67, 80),
    Sketcher.Constraint("Perpendicular", 66, 82),
    Sketcher.Constraint("Perpendicular", 82, 83),
    Sketcher.Constraint("Perpendicular", 83, 84),
    Sketcher.Constraint("Horizontal", 0, 2, 17, 2),
    Sketcher.Constraint("Horizontal", 48, 2, 77, 2),
    Sketcher.Constraint("Equal", 56, 58),
    Sketcher.Constraint("Equal", 8, 10),
    Sketcher.Constraint("Equal", 7, 11),
    Sketcher.Constraint("Equal", 6, 12),
    Sketcher.Constraint("Equal", 5, 13),
    Sketcher.Constraint("Equal", 10, 22),
    Sketcher.Constraint("Equal", 32, 44),
    Sketcher.Constraint("Equal", 28, 48),
    Sketcher.Constraint("Equal", 51, 55),
    Sketcher.Constraint("Equal", 55, 59),
    Sketcher.Constraint("Equal", 59, 63),
    Sketcher.Constraint("Equal", 50, 64),
    Sketcher.Constraint("Equal", 64, 66),
    Sketcher.Constraint("Equal", 63, 67),
    Sketcher.Constraint("Equal", 67, 71),
    Sketcher.Constraint("Equal", 66, 72),
    Sketcher.Constraint("Equal", 78, 80),
    Sketcher.Constraint("Equal", 37, 82),
    Sketcher.Constraint("Equal", 36, 83),
    Sketcher.Constraint("Equal", 35, 84),
    Sketcher.Constraint("Radius", 2, 5.0),
    Sketcher.Constraint("Radius", 16, 35.0),
    Sketcher.Constraint("Radius", 29, 4.0),
    Sketcher.Constraint("Radius", 34, 34.0),
    Sketcher.Constraint("Radius", 38, 2.0),
    Sketcher.Constraint("Radius", 85, 6.0),
    Sketcher.Constraint("Radius", 31, 0.5),
    Sketcher.Constraint("Radius", 52, 0.3),
    Sketcher.Constraint("Radius", 79, 1.2),
    Sketcher.Constraint("Angle", 3, Q("-150 deg")),
    Sketcher.Constraint("Angle", 8, Q("-15 deg")),
    Sketcher.Constraint("Angle", 32, Q("-30 deg")),
    Sketcher.Constraint("Angle", 50, Q("15 deg")),
    Sketcher.Constraint("Radius", 30, 5.25),
    Sketcher.Constraint("Radius", 53, 3.75),
    Sketcher.Constraint("DistanceX", 0, 2, 0, 1, 10.900002),
    Sketcher.Constraint("DistanceY", 19, 2, 19, 1, 2.5),
    Sketcher.Constraint("DistanceX", -1, 1, 57, 3, 3.0),
    Sketcher.Constraint("DistanceY", -1, 1, 0, 2, 15.0),
    Sketcher.Constraint("DistanceY", -1, 1, 39, 2, 14.0),
    Sketcher.Constraint("Distance", 4, 10.900002),
    Sketcher.Constraint("Distance", 5, 2.5),
    Sketcher.Constraint("DistanceY", -1, 1, 60, 3, 1.793002),
    Sketcher.Constraint("DistanceY", -1, 1, 79, 1, 2.608),
    Sketcher.Constraint("DistanceY", 43, 3, -1, 1, 4.108798),
    Sketcher.Constraint("DistanceX", -1, 1, 22, 2, 3.941498),
    Sketcher.Constraint("DistanceY", -1, 1, 50, 2, 2.840899),
    Sketcher.Constraint("DistanceX", 78, 2, -1, 1, 5.676299),
    Sketcher.Constraint("Distance", 17, 3.665508),
    Sketcher.Constraint("Distance", 28, 1.515178),
    Sketcher.Constraint("DistanceX", 18, 2, 18, 1, 10.710116),
    Sketcher.Constraint("DistanceX", 20, 1, 20, 2, 2.699997),
    Sketcher.Constraint("DistanceY", 21, 2, 21, 1, 4.639344),
    Sketcher.Constraint("DistanceY", -1, 1, 16, 3, 10.875562),
    Sketcher.Constraint("DistanceX", 3, 2, -1, 1, 20.490381),
    Sketcher.Constraint("DistanceY", 6, 2, -1, 1, 0.361031),
    Sketcher.Constraint("DistanceY", -1, 1, 7, 2, 1.958641),
    Sketcher.Constraint("DistanceX", 10, 2, -1, 1, 3.40753),
    Sketcher.Constraint("DistanceX", 14, 2, -1, 1, 5.21316),
    Sketcher.Constraint("Distance", 35, 2.452995),
])
pad1 = body.newObject("PartDesign::Pad", "Pad")
pad1.Profile = sketch1
pad1.Length = 25.4

doc.recompute()
